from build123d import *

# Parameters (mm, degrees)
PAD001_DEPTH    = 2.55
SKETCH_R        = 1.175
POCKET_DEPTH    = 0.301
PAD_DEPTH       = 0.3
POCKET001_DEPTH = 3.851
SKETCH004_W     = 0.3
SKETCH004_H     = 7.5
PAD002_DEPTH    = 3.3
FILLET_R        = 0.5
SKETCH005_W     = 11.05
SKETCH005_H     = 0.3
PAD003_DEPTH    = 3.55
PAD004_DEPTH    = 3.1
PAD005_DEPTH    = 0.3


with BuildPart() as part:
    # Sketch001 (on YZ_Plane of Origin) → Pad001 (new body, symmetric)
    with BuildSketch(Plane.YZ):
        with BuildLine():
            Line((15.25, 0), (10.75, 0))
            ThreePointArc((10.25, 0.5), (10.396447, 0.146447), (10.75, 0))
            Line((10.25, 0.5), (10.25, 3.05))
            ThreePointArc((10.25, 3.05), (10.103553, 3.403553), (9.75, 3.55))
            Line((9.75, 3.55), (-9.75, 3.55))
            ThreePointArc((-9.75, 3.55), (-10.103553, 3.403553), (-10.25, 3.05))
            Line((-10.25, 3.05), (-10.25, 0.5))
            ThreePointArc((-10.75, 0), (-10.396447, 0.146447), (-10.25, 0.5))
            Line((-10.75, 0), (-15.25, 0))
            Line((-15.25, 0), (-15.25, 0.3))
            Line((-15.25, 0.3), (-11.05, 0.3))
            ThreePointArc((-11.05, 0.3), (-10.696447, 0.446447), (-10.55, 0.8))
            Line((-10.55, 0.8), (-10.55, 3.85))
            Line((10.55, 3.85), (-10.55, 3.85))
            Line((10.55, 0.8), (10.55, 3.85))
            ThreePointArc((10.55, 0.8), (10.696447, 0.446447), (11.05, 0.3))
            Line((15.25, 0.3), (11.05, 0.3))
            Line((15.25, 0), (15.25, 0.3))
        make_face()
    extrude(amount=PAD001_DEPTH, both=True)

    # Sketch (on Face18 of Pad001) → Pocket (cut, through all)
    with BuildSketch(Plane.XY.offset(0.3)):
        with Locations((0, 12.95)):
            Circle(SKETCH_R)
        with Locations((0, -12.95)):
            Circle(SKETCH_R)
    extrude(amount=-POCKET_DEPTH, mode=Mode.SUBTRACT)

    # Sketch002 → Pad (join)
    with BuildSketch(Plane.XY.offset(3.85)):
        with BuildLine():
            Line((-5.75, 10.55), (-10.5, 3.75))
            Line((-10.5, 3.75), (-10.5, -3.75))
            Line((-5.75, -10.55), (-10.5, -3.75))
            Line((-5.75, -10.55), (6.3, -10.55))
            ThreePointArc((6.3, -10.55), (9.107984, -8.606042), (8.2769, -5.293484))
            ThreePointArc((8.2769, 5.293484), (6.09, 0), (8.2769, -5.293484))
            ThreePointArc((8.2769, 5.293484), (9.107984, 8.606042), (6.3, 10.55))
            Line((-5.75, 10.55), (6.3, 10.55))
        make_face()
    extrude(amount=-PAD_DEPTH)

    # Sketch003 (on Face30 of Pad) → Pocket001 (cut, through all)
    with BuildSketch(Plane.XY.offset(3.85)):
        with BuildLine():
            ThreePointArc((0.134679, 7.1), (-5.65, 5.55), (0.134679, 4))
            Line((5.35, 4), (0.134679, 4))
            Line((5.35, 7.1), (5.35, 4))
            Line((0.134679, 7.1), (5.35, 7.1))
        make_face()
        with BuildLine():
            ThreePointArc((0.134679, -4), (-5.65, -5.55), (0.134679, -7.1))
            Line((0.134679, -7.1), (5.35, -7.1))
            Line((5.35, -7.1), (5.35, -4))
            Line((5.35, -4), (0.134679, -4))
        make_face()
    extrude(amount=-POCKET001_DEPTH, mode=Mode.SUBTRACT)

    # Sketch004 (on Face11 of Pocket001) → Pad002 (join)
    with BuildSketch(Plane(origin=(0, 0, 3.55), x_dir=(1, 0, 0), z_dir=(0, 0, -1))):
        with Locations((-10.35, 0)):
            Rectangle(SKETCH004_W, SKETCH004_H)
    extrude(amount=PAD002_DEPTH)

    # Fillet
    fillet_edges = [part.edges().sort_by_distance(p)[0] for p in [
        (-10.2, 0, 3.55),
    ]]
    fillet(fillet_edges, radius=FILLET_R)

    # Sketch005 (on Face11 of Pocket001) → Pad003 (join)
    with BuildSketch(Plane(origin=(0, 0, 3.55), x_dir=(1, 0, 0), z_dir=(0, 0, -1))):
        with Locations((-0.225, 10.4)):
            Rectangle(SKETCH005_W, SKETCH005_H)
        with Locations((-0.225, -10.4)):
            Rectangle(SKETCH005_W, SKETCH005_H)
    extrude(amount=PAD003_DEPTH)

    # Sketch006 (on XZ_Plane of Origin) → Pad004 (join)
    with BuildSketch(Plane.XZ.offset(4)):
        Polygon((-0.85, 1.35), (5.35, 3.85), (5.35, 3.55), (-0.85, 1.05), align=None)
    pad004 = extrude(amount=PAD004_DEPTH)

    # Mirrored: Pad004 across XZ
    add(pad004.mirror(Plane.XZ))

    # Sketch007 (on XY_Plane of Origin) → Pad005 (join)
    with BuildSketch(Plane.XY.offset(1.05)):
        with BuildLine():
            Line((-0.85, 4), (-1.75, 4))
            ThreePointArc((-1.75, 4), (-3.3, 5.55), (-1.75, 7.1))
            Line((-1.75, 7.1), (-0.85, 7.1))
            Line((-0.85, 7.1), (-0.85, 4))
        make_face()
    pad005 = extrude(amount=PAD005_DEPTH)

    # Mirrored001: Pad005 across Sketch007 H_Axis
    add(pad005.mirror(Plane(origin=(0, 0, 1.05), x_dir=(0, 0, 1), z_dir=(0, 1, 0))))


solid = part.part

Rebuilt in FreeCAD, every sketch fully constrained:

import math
import FreeCAD as App
import Part
import Sketcher

V = App.Vector


def edges_at(feature, points):
    """Names of the edges that pass closest to the given points."""
    edges = feature.Shape.Edges
    near = lambda p: min(range(len(edges)), key=lambda i: edges[i].distToShape(Part.Vertex(*p))[0])
    return sorted({f"Edge{near(p) + 1}" for p in points})


def add_polygon(sketch, points):
    """Adds a closed chain of lines whose ends are joined by coincident constraints."""
    first, n = sketch.GeometryCount, len(points)
    for a, b in zip(points, points[1:] + points[:1]):
        sketch.addGeometry(Part.LineSegment(App.Vector(*a, 0), App.Vector(*b, 0)), False)
    for i in range(n):
        sketch.addConstraint(Sketcher.Constraint("Coincident", first + i, 2, first + (i + 1) % n, 1))

doc = App.newDocument("Part")
body = doc.addObject("PartDesign::Body", "Body")

# Sketch on YZ plane
sketch1 = doc.addObject("Sketcher::SketchObject", "Sketch")
body.addObject(sketch1)
sketch1.AttachmentSupport = (doc.YZ_Plane, [""])
sketch1.MapMode = "FlatFace"
sketch1.addGeometry(Part.LineSegment(V(10.75, 0, 0), V(15.25, 0, 0)), False)
sketch1.addGeometry(Part.LineSegment(V(15.25, 0, 0), V(15.25, 0.3, 0)), False)
sketch1.addGeometry(Part.LineSegment(V(15.25, 0.3, 0), V(11.05, 0.3, 0)), False)
sketch1.addGeometry(Part.ArcOfCircle(Part.Circle(V(11.05, 0.8, 0), V(0, 0, 1), 0.5), math.radians(-180), math.radians(-90)), False)
sketch1.addGeometry(Part.LineSegment(V(10.55, 0.8, 0), V(10.55, 3.85, 0)), False)
sketch1.addGeometry(Part.LineSegment(V(10.55, 3.85, 0), V(-10.55, 3.85, 0)), False)
sketch1.addGeometry(Part.LineSegment(V(-10.55, 3.85, 0), V(-10.55, 0.8, 0)), False)
sketch1.addGeometry(Part.ArcOfCircle(Part.Circle(V(-11.05, 0.8, 0), V(0, 0, 1), 0.5), math.radians(-90), math.radians(0)), False)
sketch1.addGeometry(Part.LineSegment(V(-11.05, 0.3, 0), V(-15.25, 0.3, 0)), False)
sketch1.addGeometry(Part.LineSegment(V(-15.25, 0.3, 0), V(-15.25, 0, 0)), False)
sketch1.addGeometry(Part.LineSegment(V(-15.25, 0, 0), V(-10.75, 0, 0)), False)
sketch1.addGeometry(Part.ArcOfCircle(Part.Circle(V(-10.75, 0.5, 0), V(0, 0, 1), 0.5), math.radians(-90), math.radians(0)), False)
sketch1.addGeometry(Part.LineSegment(V(-10.25, 0.5, 0), V(-10.25, 3.05, 0)), False)
sketch1.addGeometry(Part.ArcOfCircle(Part.Circle(V(-9.75, 3.05, 0), V(0, 0, 1), 0.5), math.radians(90), math.radians(180)), False)
sketch1.addGeometry(Part.LineSegment(V(-9.75, 3.55, 0), V(9.75, 3.55, 0)), False)
sketch1.addGeometry(Part.ArcOfCircle(Part.Circle(V(9.75, 3.05, 0), V(0, 0, 1), 0.5), math.radians(0), math.radians(90)), False)
sketch1.addGeometry(Part.LineSegment(V(10.25, 3.05, 0), V(10.25, 0.5, 0)), False)
sketch1.addGeometry(Part.ArcOfCircle(Part.Circle(V(10.75, 0.5, 0), V(0, 0, 1), 0.5), math.radians(-180), math.radians(-90)), False)
sketch1.addConstraint(Sketcher.Constraint("Coincident", 0, 2, 1, 1))
sketch1.addConstraint(Sketcher.Constraint("Coincident", 1, 2, 2, 1))
sketch1.addConstraint(Sketcher.Constraint("Coincident", 2, 2, 3, 2))
sketch1.addConstraint(Sketcher.Constraint("Coincident", 3, 1, 4, 1))
sketch1.addConstraint(Sketcher.Constraint("Coincident", 4, 2, 5, 1))
sketch1.addConstraint(Sketcher.Constraint("Coincident", 5, 2, 6, 1))
sketch1.addConstraint(Sketcher.Constraint("Coincident", 6, 2, 7, 2))
sketch1.addConstraint(Sketcher.Constraint("Coincident", 7, 1, 8, 1))
sketch1.addConstraint(Sketcher.Constraint("Coincident", 8, 2, 9, 1))
sketch1.addConstraint(Sketcher.Constraint("Coincident", 9, 2, 10, 1))
sketch1.addConstraint(Sketcher.Constraint("Coincident", 10, 2, 11, 1))
sketch1.addConstraint(Sketcher.Constraint("Coincident", 11, 2, 12, 1))
sketch1.addConstraint(Sketcher.Constraint("Coincident", 12, 2, 13, 2))
sketch1.addConstraint(Sketcher.Constraint("Coincident", 13, 1, 14, 1))
sketch1.addConstraint(Sketcher.Constraint("Coincident", 14, 2, 15, 2))
sketch1.addConstraint(Sketcher.Constraint("Coincident", 15, 1, 16, 1))
sketch1.addConstraint(Sketcher.Constraint("Coincident", 16, 2, 17, 1))
sketch1.addConstraint(Sketcher.Constraint("Coincident", 17, 2, 0, 1))
sketch1.addConstraint(Sketcher.Constraint("Horizontal", 0))
sketch1.addConstraint(Sketcher.Constraint("Vertical", 1))
sketch1.addConstraint(Sketcher.Constraint("Horizontal", 2))
sketch1.addConstraint(Sketcher.Constraint("Vertical", 4))
sketch1.addConstraint(Sketcher.Constraint("Horizontal", 5))
sketch1.addConstraint(Sketcher.Constraint("Vertical", 6))
sketch1.addConstraint(Sketcher.Constraint("Horizontal", 8))
sketch1.addConstraint(Sketcher.Constraint("Vertical", 9))
sketch1.addConstraint(Sketcher.Constraint("Horizontal", 10))
sketch1.addConstraint(Sketcher.Constraint("Vertical", 12))
sketch1.addConstraint(Sketcher.Constraint("Horizontal", 14))
sketch1.addConstraint(Sketcher.Constraint("Vertical", 16))
sketch1.addConstraint(Sketcher.Constraint("Equal", 3, 7))
sketch1.addConstraint(Sketcher.Constraint("Equal", 7, 11))
sketch1.addConstraint(Sketcher.Constraint("Equal", 11, 13))
sketch1.addConstraint(Sketcher.Constraint("Equal", 13, 15))
sketch1.addConstraint(Sketcher.Constraint("Equal", 15, 17))
sketch1.addConstraint(Sketcher.Constraint("Symmetric", 0, 2, 9, 2, -1, 1))
sketch1.addConstraint(Sketcher.Constraint("Symmetric", 3, 3, 7, 3, -2))
sketch1.addConstraint(Sketcher.Constraint("Symmetric", 11, 3, 17, 3, -2))
sketch1.addConstraint(Sketcher.Constraint("Horizontal", 7, 3, 3, 1))
sketch1.addConstraint(Sketcher.Constraint("Horizontal", 3, 1, 6, 2))
sketch1.addConstraint(Sketcher.Constraint("Horizontal", 17, 3, 11, 2))
sketch1.addConstraint(Sketcher.Constraint("Horizontal", 15, 3, 12, 2))
sketch1.addConstraint(Sketcher.Constraint("Horizontal", 12, 2, 15, 1))
sketch1.addConstraint(Sketcher.Constraint("Horizontal", 11, 2, 16, 2))
sketch1.addConstraint(Sketcher.Constraint("Vertical", 3, 3, 2, 2))
sketch1.addConstraint(Sketcher.Constraint("Vertical", 11, 3, 10, 2))
sketch1.addConstraint(Sketcher.Constraint("Vertical", 15, 3, 14, 2))
sketch1.addConstraint(Sketcher.Constraint("Equal", 2, 8))
sketch1.addConstraint(Sketcher.Constraint("Equal", 0, 10))
sketch1.addConstraint(Sketcher.Constraint("Radius", 3, 0.500001))
sketch1.addConstraint(Sketcher.Constraint("DistanceX", 0, 1, 0, 2, 4.5))
sketch1.addConstraint(Sketcher.Constraint("DistanceX", 2, 2, 2, 1, 4.2))
sketch1.addConstraint(Sketcher.Constraint("DistanceX", 5, 2, 5, 1, 21.1))
sketch1.addConstraint(Sketcher.Constraint("DistanceX", 14, 1, 14, 2, 19.5))
sketch1.addConstraint(Sketcher.Constraint("DistanceY", 1, 1, 1, 2, 0.3))
sketch1.addConstraint(Sketcher.Constraint("DistanceY", 4, 1, 4, 2, 3.05))
sketch1.addConstraint(Sketcher.Constraint("DistanceY", 12, 1, 12, 2, 2.55))
pad1 = doc.addObject("PartDesign::Pad", "Pad")
body.addObject(pad1)
pad1.Profile = sketch1
pad1.Length = 5.1
pad1.Midplane = True

# Sketch on XY plane
sketch2 = doc.addObject("Sketcher::SketchObject", "Sketch001")
body.addObject(sketch2)
sketch2.AttachmentSupport = (doc.XY_Plane, [""])
sketch2.MapMode = "FlatFace"
sketch2.AttachmentOffset = App.Placement(V(0, 0, 0.3), App.Rotation())
sketch2.addGeometry(Part.Circle(V(0, 12.9, 0), V(0, 0, 1), 1.2), False)
sketch2.addGeometry(Part.Circle(V(0, -12.9, 0), V(0, 0, 1), 1.2), False)
sketch2.addConstraint(Sketcher.Constraint("Equal", 0, 1))
sketch2.addConstraint(Sketcher.Constraint("Symmetric", 0, 3, 1, 3, -1, 1))
sketch2.addConstraint(Sketcher.Constraint("PointOnObject", 0, 3, -2))
sketch2.addConstraint(Sketcher.Constraint("Diameter", 0, 2.35))
sketch2.addConstraint(Sketcher.Constraint("DistanceY", 1, 3, 0, 3, 25.9))
pocket1 = doc.addObject("PartDesign::Pocket", "Pocket")
body.addObject(pocket1)
pocket1.Profile = sketch2
pocket1.Type = "ThroughAll"

# Sketch on XY plane
sketch3 = doc.addObject("Sketcher::SketchObject", "Sketch002")
body.addObject(sketch3)
sketch3.AttachmentSupport = (doc.XY_Plane, [""])
sketch3.MapMode = "FlatFace"
sketch3.AttachmentOffset = App.Placement(V(0, 0, 3.85), App.Rotation())
sketch3.addGeometry(Part.LineSegment(V(-5.8, 10.6, 0), V(-10.5, 3.8, 0)), False)
sketch3.addGeometry(Part.LineSegment(V(-10.5, 3.8, 0), V(-10.5, -3.8, 0)), False)
sketch3.addGeometry(Part.LineSegment(V(-10.5, -3.8, 0), V(-5.8, -10.6, 0)), False)
sketch3.addGeometry(Part.LineSegment(V(-5.8, -10.6, 0), V(6.3, -10.6, 0)), False)
sketch3.addGeometry(Part.ArcOfCircle(Part.Circle(V(6.3, -7.6, 0), V(0, 0, 1), 3), math.radians(-90), math.radians(49)), False)
sketch3.addGeometry(Part.ArcOfCircle(Part.Circle(V(13.6, 0, 0), V(0, 0, 1), 7.5), math.radians(135), math.radians(225)), False)
sketch3.addGeometry(Part.ArcOfCircle(Part.Circle(V(6.3, 7.6, 0), V(0, 0, 1), 3), math.radians(-49), math.radians(90)), False)
sketch3.addGeometry(Part.LineSegment(V(6.3, 10.6, 0), V(-5.8, 10.6, 0)), False)
sketch3.addConstraint(Sketcher.Constraint("Coincident", 0, 2, 1, 1))
sketch3.addConstraint(Sketcher.Constraint("Coincident", 1, 2, 2, 1))
sketch3.addConstraint(Sketcher.Constraint("Coincident", 2, 2, 3, 1))
sketch3.addConstraint(Sketcher.Constraint("Tangent", 3, 2, 4, 1))
sketch3.addConstraint(Sketcher.Constraint("Coincident", 4, 2, 5, 2))
sketch3.addConstraint(Sketcher.Constraint("Coincident", 5, 1, 6, 1))
sketch3.addConstraint(Sketcher.Constraint("Tangent", 6, 2, 7, 1))
sketch3.addConstraint(Sketcher.Constraint("Coincident", 7, 2, 0, 1))
sketch3.addConstraint(Sketcher.Constraint("Vertical", 1))
sketch3.addConstraint(Sketcher.Constraint("Horizontal", 3))
sketch3.addConstraint(Sketcher.Constraint("Horizontal", 7))
sketch3.addConstraint(Sketcher.Constraint("Equal", 4, 6))
sketch3.addConstraint(Sketcher.Constraint("Symmetric", 4, 3, 6, 3, -1))
sketch3.addConstraint(Sketcher.Constraint("PointOnObject", 5, 3, -1))
sketch3.addConstraint(Sketcher.Constraint("Vertical", 2, 2, 7, 2))
sketch3.addConstraint(Sketcher.Constraint("Equal", 0, 2))
sketch3.addConstraint(Sketcher.Constraint("Radius", 4, 3.0))
sketch3.addConstraint(Sketcher.Constraint("Radius", 5, 7.500001))
sketch3.addConstraint(Sketcher.Constraint("DistanceY", 1, 2, 1, 1, 7.5))
sketch3.addConstraint(Sketcher.Constraint("DistanceX", 3, 1, 3, 2, 12.05))
sketch3.addConstraint(Sketcher.Constraint("DistanceX", -1, 1, 4, 3, 6.3))
sketch3.addConstraint(Sketcher.Constraint("DistanceX", 0, 2, -1, 1, 10.5))
sketch3.addConstraint(Sketcher.Constraint("DistanceY", 4, 3, 6, 3, 15.1))
sketch3.addConstraint(Sketcher.Constraint("DistanceX", -1, 1, 5, 3, 13.590001))
pad2 = doc.addObject("PartDesign::Pad", "Pad001")
body.addObject(pad2)
pad2.Profile = sketch3
pad2.Length = 0.3
pad2.Reversed = True

# Sketch on XY plane
sketch4 = doc.addObject("Sketcher::SketchObject", "Sketch003")
body.addObject(sketch4)
sketch4.AttachmentSupport = (doc.XY_Plane, [""])
sketch4.MapMode = "FlatFace"
sketch4.AttachmentOffset = App.Placement(V(0, 0, 3.85), App.Rotation())
sketch4.addGeometry(Part.ArcOfCircle(Part.Circle(V(-2.5, 5.5, 0), V(0, 0, 1), 3.1), math.radians(30), math.radians(330)), False)
sketch4.addGeometry(Part.LineSegment(V(0.1, 4, 0), V(5.3, 4, 0)), False)
sketch4.addGeometry(Part.LineSegment(V(5.3, 4, 0), V(5.3, 7.1, 0)), False)
sketch4.addGeometry(Part.LineSegment(V(5.3, 7.1, 0), V(0.1, 7.1, 0)), False)
sketch4.addGeometry(Part.ArcOfCircle(Part.Circle(V(-2.5, -5.5, 0), V(0, 0, 1), 3.1), math.radians(30), math.radians(330)), False)
sketch4.addGeometry(Part.LineSegment(V(0.1, -7.1, 0), V(5.3, -7.1, 0)), False)
sketch4.addGeometry(Part.LineSegment(V(5.3, -7.1, 0), V(5.3, -4, 0)), False)
sketch4.addGeometry(Part.LineSegment(V(5.3, -4, 0), V(0.1, -4, 0)), False)
sketch4.addConstraint(Sketcher.Constraint("Coincident", 0, 2, 1, 1))
sketch4.addConstraint(Sketcher.Constraint("Coincident", 1, 2, 2, 1))
sketch4.addConstraint(Sketcher.Constraint("Coincident", 2, 2, 3, 1))
sketch4.addConstraint(Sketcher.Constraint("Coincident", 3, 2, 0, 1))
sketch4.addConstraint(Sketcher.Constraint("Coincident", 4, 2, 5, 1))
sketch4.addConstraint(Sketcher.Constraint("Coincident", 5, 2, 6, 1))
sketch4.addConstraint(Sketcher.Constraint("Coincident", 6, 2, 7, 1))
sketch4.addConstraint(Sketcher.Constraint("Coincident", 7, 2, 4, 1))
sketch4.addConstraint(Sketcher.Constraint("Horizontal", 1))
sketch4.addConstraint(Sketcher.Constraint("Vertical", 2))
sketch4.addConstraint(Sketcher.Constraint("Horizontal", 3))
sketch4.addConstraint(Sketcher.Constraint("Horizontal", 5))
sketch4.addConstraint(Sketcher.Constraint("Vertical", 6))
sketch4.addConstraint(Sketcher.Constraint("Horizontal", 7))
sketch4.addConstraint(Sketcher.Constraint("Equal", 0, 4))
sketch4.addConstraint(Sketcher.Constraint("Symmetric", 0, 3, 4, 3, -1))
sketch4.addConstraint(Sketcher.Constraint("Symmetric", 2, 2, 5, 2, -1))
sketch4.addConstraint(Sketcher.Constraint("Vertical", 0, 2, 3, 2))
sketch4.addConstraint(Sketcher.Constraint("Vertical", 4, 2, 7, 2))
sketch4.addConstraint(Sketcher.Constraint("Radius", 0, 3.1))
sketch4.addConstraint(Sketcher.Constraint("DistanceY", 2, 1, 2, 2, 3.1))
sketch4.addConstraint(Sketcher.Constraint("DistanceY", -1, 1, 0, 2, 4.0))
sketch4.addConstraint(Sketcher.Constraint("DistanceX", 0, 3, 1, 2, 7.9))
sketch4.addConstraint(Sketcher.Constraint("DistanceX", 0, 3, -1, 1, 2.55))
pocket2 = doc.addObject("PartDesign::Pocket", "Pocket001")
body.addObject(pocket2)
pocket2.Profile = sketch4
pocket2.Type = "ThroughAll"

# Sketch on XY plane
sketch5 = doc.addObject("Sketcher::SketchObject", "Sketch004")
body.addObject(sketch5)
sketch5.AttachmentSupport = (doc.XY_Plane, [""])
sketch5.MapMode = "FlatFace"
sketch5.AttachmentOffset = App.Placement(V(0, 0, 3.55), App.Rotation())
add_polygon(sketch5, [(-10.5, -3.75), (-10.5, 3.75), (-10.2, 3.75), (-10.2, -3.75)])  # lines 0-3
sketch5.addConstraint(Sketcher.Constraint("Vertical", 0))
sketch5.addConstraint(Sketcher.Constraint("Horizontal", 1))
sketch5.addConstraint(Sketcher.Constraint("Vertical", 2))
sketch5.addConstraint(Sketcher.Constraint("Horizontal", 3))
sketch5.addConstraint(Sketcher.Constraint("DistanceX", 1, 1, 1, 2, 0.3))
sketch5.addConstraint(Sketcher.Constraint("DistanceY", 0, 1, 0, 2, 7.5))
sketch5.addConstraint(Sketcher.Constraint("DistanceX", 0, 2, -1, 1, 10.5))
sketch5.addConstraint(Sketcher.Constraint("DistanceY", -1, 1, 0, 2, 3.75))
pad3 = doc.addObject("PartDesign::Pad", "Pad002")
body.addObject(pad3)
pad3.Profile = sketch5
pad3.Length = 3.3
pad3.Reversed = True
doc.recompute()

fillet = doc.addObject("PartDesign::Fillet", "Fillet")
body.addObject(fillet)
fillet.Base = (pad3, edges_at(pad3, [(-10.2, 0, 3.55)]))
fillet.Radius = 0.5

# Sketch on XY plane
sketch6 = doc.addObject("Sketcher::SketchObject", "Sketch005")
body.addObject(sketch6)
sketch6.AttachmentSupport = (doc.XY_Plane, [""])
sketch6.MapMode = "FlatFace"
sketch6.AttachmentOffset = App.Placement(V(0, 0, 3.55), App.Rotation())
add_polygon(sketch6, [(-5.75, -10.55), (-5.75, -10.25), (5.3, -10.25), (5.3, -10.55)])  # lines 0-3
add_polygon(sketch6, [(-5.75, 10.25), (-5.75, 10.55), (5.3, 10.55), (5.3, 10.25)])  # lines 4-7
sketch6.addConstraint(Sketcher.Constraint("Vertical", 0))
sketch6.addConstraint(Sketcher.Constraint("Horizontal", 1))
sketch6.addConstraint(Sketcher.Constraint("Vertical", 2))
sketch6.addConstraint(Sketcher.Constraint("Horizontal", 3))
sketch6.addConstraint(Sketcher.Constraint("Vertical", 4))
sketch6.addConstraint(Sketcher.Constraint("Horizontal", 5))
sketch6.addConstraint(Sketcher.Constraint("Vertical", 6))
sketch6.addConstraint(Sketcher.Constraint("Horizontal", 7))
sketch6.addConstraint(Sketcher.Constraint("Symmetric", 3, 2, 4, 2, -1))
sketch6.addConstraint(Sketcher.Constraint("Symmetric", 1, 2, 6, 2, -1))
sketch6.addConstraint(Sketcher.Constraint("DistanceY", 0, 1, 0, 2, 0.3))
sketch6.addConstraint(Sketcher.Constraint("DistanceX", 1, 1, 1, 2, 11.05))
sketch6.addConstraint(Sketcher.Constraint("DistanceX", -1, 1, 1, 2, 5.3))
sketch6.addConstraint(Sketcher.Constraint("DistanceY", 0, 2, 4, 2, 20.8))
pad4 = doc.addObject("PartDesign::Pad", "Pad003")
body.addObject(pad4)
pad4.Profile = sketch6
pad4.Length = 3.55
pad4.Reversed = True

# Sketch on XZ plane
sketch7 = doc.addObject("Sketcher::SketchObject", "Sketch006")
body.addObject(sketch7)
sketch7.AttachmentSupport = (doc.XZ_Plane, [""])
sketch7.MapMode = "FlatFace"
sketch7.AttachmentOffset = App.Placement(V(0, 0, 4), App.Rotation())
add_polygon(sketch7, [(5.35, 3.85), (-0.85, 1.35), (-0.85, 1.05), (5.35, 3.55)])  # lines 0-3
sketch7.addConstraint(Sketcher.Constraint("Vertical", 1))
sketch7.addConstraint(Sketcher.Constraint("Vertical", 3))
sketch7.addConstraint(Sketcher.Constraint("Parallel", 0, 2))
sketch7.addConstraint(Sketcher.Constraint("DistanceY", 1, 2, 1, 1, 0.3))
sketch7.addConstraint(Sketcher.Constraint("DistanceX", 0, 2, 2, 2, 6.2))
sketch7.addConstraint(Sketcher.Constraint("DistanceY", 0, 2, 2, 2, 2.2))
sketch7.addConstraint(Sketcher.Constraint("DistanceX", 0, 2, -1, 1, 0.85))
sketch7.addConstraint(Sketcher.Constraint("DistanceY", -1, 1, 0, 2, 1.35))
pad5 = doc.addObject("PartDesign::Pad", "Pad004")
body.addObject(pad5)
pad5.Profile = sketch7
pad5.Length = 3.1
doc.recompute()

mirrored = doc.addObject("PartDesign::Mirrored", "Mirrored")
body.addObject(mirrored)
mirrored.Originals = [pad5]
mirrored.MirrorPlane = (doc.XZ_Plane, [""])
body.Tip = mirrored

# Sketch on XY plane
sketch8 = doc.addObject("Sketcher::SketchObject", "Sketch007")
body.addObject(sketch8)
sketch8.AttachmentSupport = (doc.XY_Plane, [""])
sketch8.MapMode = "FlatFace"
sketch8.AttachmentOffset = App.Placement(V(0, 0, 1.05), App.Rotation())
sketch8.addGeometry(Part.LineSegment(V(-1.8, 4, 0), V(-0.8, 4, 0)), False)
sketch8.addGeometry(Part.LineSegment(V(-0.8, 4, 0), V(-0.8, 7.1, 0)), False)
sketch8.addGeometry(Part.LineSegment(V(-0.8, 7.1, 0), V(-1.8, 7.1, 0)), False)
sketch8.addGeometry(Part.ArcOfCircle(Part.Circle(V(-1.8, 5.5, 0), V(0, 0, 1), 1.6), math.radians(90), math.radians(270)), False)
sketch8.addConstraint(Sketcher.Constraint("Coincident", 0, 2, 1, 1))
sketch8.addConstraint(Sketcher.Constraint("Coincident", 1, 2, 2, 1))
sketch8.addConstraint(Sketcher.Constraint("Tangent", 2, 2, 3, 1))
sketch8.addConstraint(Sketcher.Constraint("Tangent", 3, 2, 0, 1))
sketch8.addConstraint(Sketcher.Constraint("Horizontal", 0))
sketch8.addConstraint(Sketcher.Constraint("Vertical", 1))
sketch8.addConstraint(Sketcher.Constraint("Horizontal", 2))
sketch8.addConstraint(Sketcher.Constraint("Radius", 3, 1.55))
sketch8.addConstraint(Sketcher.Constraint("DistanceX", 0, 1, 0, 2, 0.9))
sketch8.addConstraint(Sketcher.Constraint("DistanceY", -1, 1, 0, 2, 4.0))
sketch8.addConstraint(Sketcher.Constraint("DistanceX", 3, 3, -1, 1, 1.75))
pad6 = doc.addObject("PartDesign::Pad", "Pad005")
body.addObject(pad6)
pad6.Profile = sketch8
pad6.Length = 0.3
doc.recompute()

mirrored2 = doc.addObject("PartDesign::Mirrored", "Mirrored001")
body.addObject(mirrored2)
mirrored2.Originals = [pad6]
mirrored2.MirrorPlane = (doc.XZ_Plane, [""])
body.Tip = mirrored2

doc.recompute()
